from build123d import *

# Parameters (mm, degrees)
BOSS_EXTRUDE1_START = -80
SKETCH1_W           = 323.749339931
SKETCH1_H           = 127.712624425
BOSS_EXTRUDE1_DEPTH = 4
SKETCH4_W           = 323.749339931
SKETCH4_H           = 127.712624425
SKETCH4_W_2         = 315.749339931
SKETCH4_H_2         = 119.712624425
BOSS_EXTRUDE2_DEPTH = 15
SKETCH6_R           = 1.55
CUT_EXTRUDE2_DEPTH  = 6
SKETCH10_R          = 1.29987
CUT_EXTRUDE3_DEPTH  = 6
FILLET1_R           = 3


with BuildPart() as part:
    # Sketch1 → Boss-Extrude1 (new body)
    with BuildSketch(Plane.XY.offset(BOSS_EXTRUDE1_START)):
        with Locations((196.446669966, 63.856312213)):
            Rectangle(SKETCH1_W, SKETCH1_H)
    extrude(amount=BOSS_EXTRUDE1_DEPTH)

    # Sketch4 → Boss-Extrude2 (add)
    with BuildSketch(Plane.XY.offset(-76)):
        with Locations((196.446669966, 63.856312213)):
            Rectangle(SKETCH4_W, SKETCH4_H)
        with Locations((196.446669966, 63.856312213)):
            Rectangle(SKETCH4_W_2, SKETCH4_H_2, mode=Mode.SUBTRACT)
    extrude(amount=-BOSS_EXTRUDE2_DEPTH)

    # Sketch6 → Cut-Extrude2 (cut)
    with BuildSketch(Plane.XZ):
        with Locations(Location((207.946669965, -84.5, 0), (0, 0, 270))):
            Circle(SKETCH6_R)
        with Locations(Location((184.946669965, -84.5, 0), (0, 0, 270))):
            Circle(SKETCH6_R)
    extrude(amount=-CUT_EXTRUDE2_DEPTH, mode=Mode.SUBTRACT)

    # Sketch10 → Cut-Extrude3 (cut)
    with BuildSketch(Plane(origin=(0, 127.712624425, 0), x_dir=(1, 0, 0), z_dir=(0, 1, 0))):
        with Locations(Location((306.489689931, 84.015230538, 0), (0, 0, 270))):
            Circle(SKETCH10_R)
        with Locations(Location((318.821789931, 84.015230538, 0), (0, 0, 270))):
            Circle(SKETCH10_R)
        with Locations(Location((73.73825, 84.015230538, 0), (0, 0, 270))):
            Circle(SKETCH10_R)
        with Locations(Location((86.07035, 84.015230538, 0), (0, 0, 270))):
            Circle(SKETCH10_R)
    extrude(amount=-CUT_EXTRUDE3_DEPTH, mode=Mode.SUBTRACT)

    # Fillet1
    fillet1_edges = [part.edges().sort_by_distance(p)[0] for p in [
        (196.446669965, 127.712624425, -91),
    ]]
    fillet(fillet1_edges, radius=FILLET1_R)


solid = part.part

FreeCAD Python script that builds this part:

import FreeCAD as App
import Part
import Sketcher
Q = App.Units.Quantity


def edges_at(feature, points):
    """Names of the edges that pass closest to the given points."""
    edges = feature.Shape.Edges
    near = lambda p: min(range(len(edges)), key=lambda i: edges[i].distToShape(Part.Vertex(*p))[0])
    return sorted({f"Edge{near(p) + 1}" for p in points})


def add_polygon(sketch, points):
    """Adds a closed chain of lines whose ends are joined by coincident constraints."""
    first, n = sketch.GeometryCount, len(points)
    for a, b in zip(points, points[1:] + points[:1]):
        sketch.addGeometry(Part.LineSegment(App.Vector(*a, 0), App.Vector(*b, 0)), False)
    for i in range(n):
        sketch.addConstraint(Sketcher.Constraint("Coincident", first + i, 2, first + (i + 1) % n, 1))

doc = App.newDocument("Part")
body = doc.addObject("PartDesign::Body", "Body")

# Sketch on XY plane
sketch1 = body.newObject("Sketcher::SketchObject", "Sketch")
sketch1.AttachmentSupport = (doc.getObject("XY_Plane"), [""])
sketch1.MapMode = "FlatFace"
sketch1.AttachmentOffset = App.Placement(App.Vector(0, 0, -80), App.Rotation())
add_polygon(sketch1, [(35, 128), (35, 0), (358, 0), (358, 128)])  # lines 0-3
sketch1.addConstraint([
    Sketcher.Constraint("Vertical", 0),
    Sketcher.Constraint("Horizontal", 1),
    Sketcher.Constraint("Vertical", 2),
    Sketcher.Constraint("Horizontal", 3),
    Sketcher.Constraint("PointOnObject", 0, 2, -1),
    Sketcher.Constraint("DistanceX", -1, 1, 0, 2, Q("34.572 mm")),
    Sketcher.Constraint("DistanceX", 1, 1, 1, 2, Q("323.74934 mm")),
    Sketcher.Constraint("DistanceY", 0, 2, 0, 1, Q("127.712624 mm")),
])
pad1 = body.newObject("PartDesign::Pad", "Pad")
pad1.Profile = sketch1
pad1.Length = 4

# Sketch on XY plane
sketch2 = body.newObject("Sketcher::SketchObject", "Sketch001")
sketch2.AttachmentSupport = (doc.getObject("XY_Plane"), [""])
sketch2.MapMode = "FlatFace"
sketch2.AttachmentOffset = App.Placement(App.Vector(0, 0, -76), App.Rotation())
add_polygon(sketch2, [(35, 128), (35, 0), (358, 0), (358, 128)])  # lines 0-3
add_polygon(sketch2, [(354, 4), (39, 4), (39, 124), (354, 124)])  # lines 4-7
sketch2.addConstraint([
    Sketcher.Constraint("Vertical", 0),
    Sketcher.Constraint("Horizontal", 1),
    Sketcher.Constraint("Vertical", 2),
    Sketcher.Constraint("Horizontal", 3),
    Sketcher.Constraint("Horizontal", 4),
    Sketcher.Constraint("Vertical", 5),
    Sketcher.Constraint("Horizontal", 6),
    Sketcher.Constraint("Vertical", 7),
    Sketcher.Constraint("PointOnObject", 0, 2, -1),
    Sketcher.Constraint("DistanceY", -1, 1, 4, 2, Q("4 mm")),
    Sketcher.Constraint("DistanceX", 0, 2, 4, 2, Q("4 mm")),
    Sketcher.Constraint("DistanceY", 5, 2, 3, 2, Q("4 mm")),
    Sketcher.Constraint("DistanceX", 6, 2, 2, 2, Q("4 mm")),
    Sketcher.Constraint("DistanceX", -1, 1, 0, 2, Q("34.572 mm")),
    Sketcher.Constraint("DistanceX", 1, 1, 1, 2, Q("323.74934 mm")),
    Sketcher.Constraint("DistanceY", 0, 2, 0, 1, Q("127.712624 mm")),
])
pad2 = body.newObject("PartDesign::Pad", "Pad001")
pad2.Profile = sketch2
pad2.Length = 15
pad2.Reversed = True

# Sketch on XZ plane
sketch3 = body.newObject("Sketcher::SketchObject", "Sketch002")
sketch3.AttachmentSupport = (doc.getObject("XZ_Plane"), [""])
sketch3.MapMode = "FlatFace"
sketch3.addGeometry([
    Part.Circle(App.Vector(207.9, -84.5, 0), App.Vector(0, 0, 1), 1.6),
    Part.Circle(App.Vector(184.9, -84.5, 0), App.Vector(0, 0, 1), 1.6),
], False)
sketch3.addConstraint([
    Sketcher.Constraint("Equal", 0, 1),
    Sketcher.Constraint("Horizontal", 0, 3, 1, 3),
    Sketcher.Constraint("Diameter", 0, Q("3.1 mm")),
    Sketcher.Constraint("DistanceX", 1, 3, 0, 3, Q("23 mm")),
    Sketcher.Constraint("DistanceY", 0, 3, -1, 1, Q("84.5 mm")),
    Sketcher.Constraint("DistanceX", -1, 1, 0, 3, Q("207.94667 mm")),
])
pocket1 = body.newObject("PartDesign::Pocket", "Pocket")
pocket1.Profile = sketch3
pocket1.Length = 6

# Sketch on XZ plane
sketch4 = body.newObject("Sketcher::SketchObject", "Sketch003")
sketch4.AttachmentSupport = (doc.getObject("XZ_Plane"), [""])
sketch4.MapMode = "FlatFace"
sketch4.AttachmentOffset = App.Placement(App.Vector(0, 0, -127.712624), App.Rotation())
sketch4.addGeometry([
    Part.Circle(App.Vector(306.5, -84, 0), App.Vector(0, 0, 1), 1.3),
    Part.Circle(App.Vector(318.8, -84, 0), App.Vector(0, 0, 1), 1.3),
    Part.Circle(App.Vector(73.7, -84, 0), App.Vector(0, 0, 1), 1.3),
    Part.Circle(App.Vector(86.1, -84, 0), App.Vector(0, 0, 1), 1.3),
], False)
sketch4.addConstraint([
    Sketcher.Constraint("Equal", 0, 1),
    Sketcher.Constraint("Equal", 1, 2),
    Sketcher.Constraint("Equal", 2, 3),
    Sketcher.Constraint("Horizontal", 0, 3, 1, 3),
    Sketcher.Constraint("Horizontal", 1, 3, 2, 3),
    Sketcher.Constraint("Horizontal", 2, 3, 3, 3),
    Sketcher.Constraint("Diameter", 0, Q("2.59974 mm")),
    Sketcher.Constraint("DistanceX", 0, 3, 1, 3, Q("12.3321 mm")),
    Sketcher.Constraint("DistanceX", 2, 3, 3, 3, Q("12.3321 mm")),
    Sketcher.Constraint("DistanceX", -1, 1, 0, 3, Q("306.48969 mm")),
    Sketcher.Constraint("DistanceY", 0, 3, -1, 1, Q("84.015231 mm")),
    Sketcher.Constraint("DistanceX", -1, 1, 2, 3, Q("73.73825 mm")),
])
pocket2 = body.newObject("PartDesign::Pocket", "Pocket001")
pocket2.Profile = sketch4
pocket2.Length = 6
pocket2.Reversed = True
doc.recompute()

fillet = body.newObject("PartDesign::Fillet", "Fillet")
fillet.Base = (pocket2, edges_at(pocket2, [(196.447, 127.713, -91)]))
fillet.Radius = 3

doc.recompute()
